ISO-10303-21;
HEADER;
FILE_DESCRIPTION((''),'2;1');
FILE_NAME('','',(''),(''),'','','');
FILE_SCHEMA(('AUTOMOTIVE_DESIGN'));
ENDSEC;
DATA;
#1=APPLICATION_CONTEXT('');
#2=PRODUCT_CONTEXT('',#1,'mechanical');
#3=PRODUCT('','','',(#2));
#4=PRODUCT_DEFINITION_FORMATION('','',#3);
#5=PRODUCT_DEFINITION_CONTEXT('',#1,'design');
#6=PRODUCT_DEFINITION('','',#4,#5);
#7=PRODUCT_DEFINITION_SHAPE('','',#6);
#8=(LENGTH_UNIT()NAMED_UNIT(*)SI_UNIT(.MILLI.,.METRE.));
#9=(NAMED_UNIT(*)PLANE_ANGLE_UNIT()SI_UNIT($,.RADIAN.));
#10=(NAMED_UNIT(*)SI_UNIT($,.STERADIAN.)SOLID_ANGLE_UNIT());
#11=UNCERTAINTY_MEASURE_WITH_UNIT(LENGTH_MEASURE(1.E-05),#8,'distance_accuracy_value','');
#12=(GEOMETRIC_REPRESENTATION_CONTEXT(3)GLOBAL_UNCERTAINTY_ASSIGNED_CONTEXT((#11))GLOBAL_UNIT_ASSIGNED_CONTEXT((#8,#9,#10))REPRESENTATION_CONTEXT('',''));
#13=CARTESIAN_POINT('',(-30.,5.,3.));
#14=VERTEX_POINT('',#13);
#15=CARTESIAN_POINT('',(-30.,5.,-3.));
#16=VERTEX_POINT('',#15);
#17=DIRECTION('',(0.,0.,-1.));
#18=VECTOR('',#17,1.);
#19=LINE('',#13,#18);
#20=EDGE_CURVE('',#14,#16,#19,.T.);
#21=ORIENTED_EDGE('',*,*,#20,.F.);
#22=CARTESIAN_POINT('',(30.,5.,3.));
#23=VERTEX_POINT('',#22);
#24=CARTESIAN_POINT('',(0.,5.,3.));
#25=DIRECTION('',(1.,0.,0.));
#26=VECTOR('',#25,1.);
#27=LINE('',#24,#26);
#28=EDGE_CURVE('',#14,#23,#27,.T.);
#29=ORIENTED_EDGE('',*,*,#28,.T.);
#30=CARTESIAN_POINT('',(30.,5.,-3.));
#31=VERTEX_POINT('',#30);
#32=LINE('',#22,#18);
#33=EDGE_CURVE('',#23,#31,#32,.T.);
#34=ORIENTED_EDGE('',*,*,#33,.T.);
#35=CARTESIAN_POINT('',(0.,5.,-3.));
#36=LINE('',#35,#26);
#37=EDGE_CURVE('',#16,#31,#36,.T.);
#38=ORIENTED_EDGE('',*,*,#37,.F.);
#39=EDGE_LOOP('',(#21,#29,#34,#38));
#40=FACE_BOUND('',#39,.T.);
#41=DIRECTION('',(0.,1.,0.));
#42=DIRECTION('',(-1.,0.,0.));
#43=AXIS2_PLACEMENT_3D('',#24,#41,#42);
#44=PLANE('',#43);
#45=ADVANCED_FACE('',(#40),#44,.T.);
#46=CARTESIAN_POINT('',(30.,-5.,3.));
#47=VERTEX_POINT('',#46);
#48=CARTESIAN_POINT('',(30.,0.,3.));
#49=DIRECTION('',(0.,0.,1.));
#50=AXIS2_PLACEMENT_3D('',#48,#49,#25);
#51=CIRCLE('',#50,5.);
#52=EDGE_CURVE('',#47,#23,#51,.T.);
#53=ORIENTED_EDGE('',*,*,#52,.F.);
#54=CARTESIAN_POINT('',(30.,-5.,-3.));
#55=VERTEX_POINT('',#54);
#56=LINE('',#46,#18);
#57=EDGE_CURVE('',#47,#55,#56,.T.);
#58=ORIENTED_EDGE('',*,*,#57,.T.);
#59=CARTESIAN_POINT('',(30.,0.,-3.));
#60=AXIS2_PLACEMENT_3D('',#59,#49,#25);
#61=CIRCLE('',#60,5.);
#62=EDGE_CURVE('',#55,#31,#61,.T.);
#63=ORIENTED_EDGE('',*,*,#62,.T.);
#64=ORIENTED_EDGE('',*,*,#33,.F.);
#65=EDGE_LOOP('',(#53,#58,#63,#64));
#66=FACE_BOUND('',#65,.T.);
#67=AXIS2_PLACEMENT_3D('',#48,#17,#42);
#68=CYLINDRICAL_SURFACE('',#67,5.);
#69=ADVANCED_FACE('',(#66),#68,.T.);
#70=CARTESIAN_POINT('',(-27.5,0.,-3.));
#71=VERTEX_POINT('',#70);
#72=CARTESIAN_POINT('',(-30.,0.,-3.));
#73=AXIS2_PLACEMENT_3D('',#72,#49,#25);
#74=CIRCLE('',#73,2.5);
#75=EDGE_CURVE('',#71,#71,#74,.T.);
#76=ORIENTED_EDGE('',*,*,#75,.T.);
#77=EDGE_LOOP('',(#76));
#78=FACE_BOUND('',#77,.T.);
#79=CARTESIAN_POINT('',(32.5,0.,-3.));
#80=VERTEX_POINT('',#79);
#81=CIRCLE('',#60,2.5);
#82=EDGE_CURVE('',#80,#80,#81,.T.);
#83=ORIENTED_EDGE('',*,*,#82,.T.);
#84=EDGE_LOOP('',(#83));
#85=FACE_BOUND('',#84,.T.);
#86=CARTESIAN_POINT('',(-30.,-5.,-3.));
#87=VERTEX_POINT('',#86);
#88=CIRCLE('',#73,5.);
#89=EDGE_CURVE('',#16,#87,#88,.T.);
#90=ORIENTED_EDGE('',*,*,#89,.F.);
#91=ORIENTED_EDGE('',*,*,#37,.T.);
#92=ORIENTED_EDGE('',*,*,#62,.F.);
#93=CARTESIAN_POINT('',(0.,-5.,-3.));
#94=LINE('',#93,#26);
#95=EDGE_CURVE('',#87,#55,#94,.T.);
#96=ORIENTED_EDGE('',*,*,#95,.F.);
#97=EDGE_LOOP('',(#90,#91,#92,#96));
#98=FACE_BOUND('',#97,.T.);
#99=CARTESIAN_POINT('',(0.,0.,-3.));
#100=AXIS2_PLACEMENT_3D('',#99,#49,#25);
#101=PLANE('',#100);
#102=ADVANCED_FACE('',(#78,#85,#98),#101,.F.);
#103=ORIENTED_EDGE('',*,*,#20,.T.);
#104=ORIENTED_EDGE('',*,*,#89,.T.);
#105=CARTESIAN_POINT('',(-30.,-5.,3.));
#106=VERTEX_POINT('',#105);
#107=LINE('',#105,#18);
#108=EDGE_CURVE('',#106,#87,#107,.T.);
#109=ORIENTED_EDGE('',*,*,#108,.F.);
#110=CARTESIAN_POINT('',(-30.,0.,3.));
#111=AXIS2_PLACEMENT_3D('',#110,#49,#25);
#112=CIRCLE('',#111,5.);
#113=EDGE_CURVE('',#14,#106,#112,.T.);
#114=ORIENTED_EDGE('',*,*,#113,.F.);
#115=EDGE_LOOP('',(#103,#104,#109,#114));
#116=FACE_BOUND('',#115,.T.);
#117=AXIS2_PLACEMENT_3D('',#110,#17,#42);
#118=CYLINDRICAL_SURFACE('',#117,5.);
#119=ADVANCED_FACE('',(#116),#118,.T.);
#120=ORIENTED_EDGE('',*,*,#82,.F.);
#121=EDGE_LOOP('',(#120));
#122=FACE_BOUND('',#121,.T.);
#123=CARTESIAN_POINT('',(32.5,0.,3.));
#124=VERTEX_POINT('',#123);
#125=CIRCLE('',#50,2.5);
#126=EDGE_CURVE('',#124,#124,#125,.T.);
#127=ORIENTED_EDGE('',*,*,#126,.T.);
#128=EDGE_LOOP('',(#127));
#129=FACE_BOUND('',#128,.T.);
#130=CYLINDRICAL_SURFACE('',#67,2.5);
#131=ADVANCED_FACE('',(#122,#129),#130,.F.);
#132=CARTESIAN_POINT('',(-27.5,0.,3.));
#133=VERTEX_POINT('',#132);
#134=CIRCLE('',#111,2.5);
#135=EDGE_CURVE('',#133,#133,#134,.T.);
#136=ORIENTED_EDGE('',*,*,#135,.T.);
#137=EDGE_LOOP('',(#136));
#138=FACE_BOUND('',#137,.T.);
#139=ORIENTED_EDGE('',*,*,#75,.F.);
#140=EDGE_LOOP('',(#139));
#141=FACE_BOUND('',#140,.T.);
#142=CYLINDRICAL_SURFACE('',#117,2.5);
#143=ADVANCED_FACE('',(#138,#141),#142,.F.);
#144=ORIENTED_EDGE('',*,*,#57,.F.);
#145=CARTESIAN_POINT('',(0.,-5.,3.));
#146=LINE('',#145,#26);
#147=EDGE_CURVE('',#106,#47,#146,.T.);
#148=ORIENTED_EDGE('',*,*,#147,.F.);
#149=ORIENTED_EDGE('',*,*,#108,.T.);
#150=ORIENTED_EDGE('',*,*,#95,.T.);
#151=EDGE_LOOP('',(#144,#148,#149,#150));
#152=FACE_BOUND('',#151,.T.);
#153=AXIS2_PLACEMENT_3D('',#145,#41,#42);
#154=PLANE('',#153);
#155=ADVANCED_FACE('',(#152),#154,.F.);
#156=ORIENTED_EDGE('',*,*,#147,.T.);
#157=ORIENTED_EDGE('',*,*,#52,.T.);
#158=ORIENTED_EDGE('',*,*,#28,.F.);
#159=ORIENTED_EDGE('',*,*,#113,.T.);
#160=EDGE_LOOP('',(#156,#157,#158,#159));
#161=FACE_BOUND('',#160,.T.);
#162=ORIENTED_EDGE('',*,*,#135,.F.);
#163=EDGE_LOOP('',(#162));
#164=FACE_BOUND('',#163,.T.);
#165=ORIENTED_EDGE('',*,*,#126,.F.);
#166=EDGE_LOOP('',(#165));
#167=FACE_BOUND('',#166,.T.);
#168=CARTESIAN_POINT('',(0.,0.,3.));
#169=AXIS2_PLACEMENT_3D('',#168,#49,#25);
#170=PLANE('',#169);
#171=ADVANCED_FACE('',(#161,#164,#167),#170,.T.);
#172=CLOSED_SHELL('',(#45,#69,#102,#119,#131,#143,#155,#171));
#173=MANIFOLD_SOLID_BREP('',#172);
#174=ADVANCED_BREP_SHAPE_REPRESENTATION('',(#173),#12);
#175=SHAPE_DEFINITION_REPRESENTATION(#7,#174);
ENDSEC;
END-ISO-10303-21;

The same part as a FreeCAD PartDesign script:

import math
import FreeCAD as App
import Part
import Sketcher

V = App.Vector
Q = App.Units.Quantity

doc = App.newDocument("Part")
params = doc.addObject("Spreadsheet::Sheet", "Params")
for row, (alias, value) in enumerate([
    ("sketch1_diameter", "5 mm"),
    ("sketch1_radius", "5 mm"),
    ("sketch1_width", "60 mm"),
    ("pad1_length", "6 mm"),
], start=1):
    params.set(f"A{row}", alias)
    params.set(f"B{row}", "=" + value)
    params.setAlias(f"B{row}", alias)

body = doc.addObject("PartDesign::Body", "Body")

# Sketch on XY plane
sketch1 = body.newObject("Sketcher::SketchObject", "Sketch")
sketch1.AttachmentSupport = (doc.getObject("XY_Plane"), [""])
sketch1.MapMode = "FlatFace"
sketch1.addGeometry([
    Part.LineSegment(V(30, 5, 0), V(-30, 5, 0)),  # 0
    Part.ArcOfCircle(Part.Circle(V(-30, 0, 0), V(0, 0, 1), 5), math.radians(90), math.radians(270)),  # 1
    Part.LineSegment(V(-30, -5, 0), V(30, -5, 0)),  # 2
    Part.ArcOfCircle(Part.Circle(V(30, 0, 0), V(0, 0, 1), 5), math.radians(-90), math.radians(90)),  # 3
    Part.Circle(V(30, 0, 0), V(0, 0, 1), 2.5),  # 4
    Part.Circle(V(-30, 0, 0), V(0, 0, 1), 2.5),  # 5
], False)
sketch1.addConstraint([
    Sketcher.Constraint("Tangent", 0, 2, 1, 1),
    Sketcher.Constraint("Tangent", 1, 2, 2, 1),
    Sketcher.Constraint("Tangent", 2, 2, 3, 1),
    Sketcher.Constraint("Tangent", 3, 2, 0, 1),
    Sketcher.Constraint("Horizontal", 0),
    Sketcher.Constraint("Horizontal", 2),
    Sketcher.Constraint("Coincident", 4, 3, 3, 3),
    Sketcher.Constraint("Coincident", 5, 3, 1, 3),
    Sketcher.Constraint("Equal", 4, 5),
    Sketcher.Constraint("Symmetric", 1, 3, 3, 3, -1, 1),
    Sketcher.Constraint("Diameter", 4, Q("5 mm")),
    Sketcher.Constraint("Radius", 1, Q("5 mm")),
    Sketcher.Constraint("DistanceX", 0, 2, 0, 1, Q("60 mm")),
])
sketch1.setExpression("Constraints[10]", "Params.sketch1_diameter")
sketch1.setExpression("Constraints[11]", "Params.sketch1_radius")
sketch1.setExpression("Constraints[12]", "Params.sketch1_width")
pad1 = body.newObject("PartDesign::Pad", "Pad")
pad1.Profile = sketch1
pad1.setExpression("Length", "Params.pad1_length")
pad1.Midplane = True

doc.recompute()
